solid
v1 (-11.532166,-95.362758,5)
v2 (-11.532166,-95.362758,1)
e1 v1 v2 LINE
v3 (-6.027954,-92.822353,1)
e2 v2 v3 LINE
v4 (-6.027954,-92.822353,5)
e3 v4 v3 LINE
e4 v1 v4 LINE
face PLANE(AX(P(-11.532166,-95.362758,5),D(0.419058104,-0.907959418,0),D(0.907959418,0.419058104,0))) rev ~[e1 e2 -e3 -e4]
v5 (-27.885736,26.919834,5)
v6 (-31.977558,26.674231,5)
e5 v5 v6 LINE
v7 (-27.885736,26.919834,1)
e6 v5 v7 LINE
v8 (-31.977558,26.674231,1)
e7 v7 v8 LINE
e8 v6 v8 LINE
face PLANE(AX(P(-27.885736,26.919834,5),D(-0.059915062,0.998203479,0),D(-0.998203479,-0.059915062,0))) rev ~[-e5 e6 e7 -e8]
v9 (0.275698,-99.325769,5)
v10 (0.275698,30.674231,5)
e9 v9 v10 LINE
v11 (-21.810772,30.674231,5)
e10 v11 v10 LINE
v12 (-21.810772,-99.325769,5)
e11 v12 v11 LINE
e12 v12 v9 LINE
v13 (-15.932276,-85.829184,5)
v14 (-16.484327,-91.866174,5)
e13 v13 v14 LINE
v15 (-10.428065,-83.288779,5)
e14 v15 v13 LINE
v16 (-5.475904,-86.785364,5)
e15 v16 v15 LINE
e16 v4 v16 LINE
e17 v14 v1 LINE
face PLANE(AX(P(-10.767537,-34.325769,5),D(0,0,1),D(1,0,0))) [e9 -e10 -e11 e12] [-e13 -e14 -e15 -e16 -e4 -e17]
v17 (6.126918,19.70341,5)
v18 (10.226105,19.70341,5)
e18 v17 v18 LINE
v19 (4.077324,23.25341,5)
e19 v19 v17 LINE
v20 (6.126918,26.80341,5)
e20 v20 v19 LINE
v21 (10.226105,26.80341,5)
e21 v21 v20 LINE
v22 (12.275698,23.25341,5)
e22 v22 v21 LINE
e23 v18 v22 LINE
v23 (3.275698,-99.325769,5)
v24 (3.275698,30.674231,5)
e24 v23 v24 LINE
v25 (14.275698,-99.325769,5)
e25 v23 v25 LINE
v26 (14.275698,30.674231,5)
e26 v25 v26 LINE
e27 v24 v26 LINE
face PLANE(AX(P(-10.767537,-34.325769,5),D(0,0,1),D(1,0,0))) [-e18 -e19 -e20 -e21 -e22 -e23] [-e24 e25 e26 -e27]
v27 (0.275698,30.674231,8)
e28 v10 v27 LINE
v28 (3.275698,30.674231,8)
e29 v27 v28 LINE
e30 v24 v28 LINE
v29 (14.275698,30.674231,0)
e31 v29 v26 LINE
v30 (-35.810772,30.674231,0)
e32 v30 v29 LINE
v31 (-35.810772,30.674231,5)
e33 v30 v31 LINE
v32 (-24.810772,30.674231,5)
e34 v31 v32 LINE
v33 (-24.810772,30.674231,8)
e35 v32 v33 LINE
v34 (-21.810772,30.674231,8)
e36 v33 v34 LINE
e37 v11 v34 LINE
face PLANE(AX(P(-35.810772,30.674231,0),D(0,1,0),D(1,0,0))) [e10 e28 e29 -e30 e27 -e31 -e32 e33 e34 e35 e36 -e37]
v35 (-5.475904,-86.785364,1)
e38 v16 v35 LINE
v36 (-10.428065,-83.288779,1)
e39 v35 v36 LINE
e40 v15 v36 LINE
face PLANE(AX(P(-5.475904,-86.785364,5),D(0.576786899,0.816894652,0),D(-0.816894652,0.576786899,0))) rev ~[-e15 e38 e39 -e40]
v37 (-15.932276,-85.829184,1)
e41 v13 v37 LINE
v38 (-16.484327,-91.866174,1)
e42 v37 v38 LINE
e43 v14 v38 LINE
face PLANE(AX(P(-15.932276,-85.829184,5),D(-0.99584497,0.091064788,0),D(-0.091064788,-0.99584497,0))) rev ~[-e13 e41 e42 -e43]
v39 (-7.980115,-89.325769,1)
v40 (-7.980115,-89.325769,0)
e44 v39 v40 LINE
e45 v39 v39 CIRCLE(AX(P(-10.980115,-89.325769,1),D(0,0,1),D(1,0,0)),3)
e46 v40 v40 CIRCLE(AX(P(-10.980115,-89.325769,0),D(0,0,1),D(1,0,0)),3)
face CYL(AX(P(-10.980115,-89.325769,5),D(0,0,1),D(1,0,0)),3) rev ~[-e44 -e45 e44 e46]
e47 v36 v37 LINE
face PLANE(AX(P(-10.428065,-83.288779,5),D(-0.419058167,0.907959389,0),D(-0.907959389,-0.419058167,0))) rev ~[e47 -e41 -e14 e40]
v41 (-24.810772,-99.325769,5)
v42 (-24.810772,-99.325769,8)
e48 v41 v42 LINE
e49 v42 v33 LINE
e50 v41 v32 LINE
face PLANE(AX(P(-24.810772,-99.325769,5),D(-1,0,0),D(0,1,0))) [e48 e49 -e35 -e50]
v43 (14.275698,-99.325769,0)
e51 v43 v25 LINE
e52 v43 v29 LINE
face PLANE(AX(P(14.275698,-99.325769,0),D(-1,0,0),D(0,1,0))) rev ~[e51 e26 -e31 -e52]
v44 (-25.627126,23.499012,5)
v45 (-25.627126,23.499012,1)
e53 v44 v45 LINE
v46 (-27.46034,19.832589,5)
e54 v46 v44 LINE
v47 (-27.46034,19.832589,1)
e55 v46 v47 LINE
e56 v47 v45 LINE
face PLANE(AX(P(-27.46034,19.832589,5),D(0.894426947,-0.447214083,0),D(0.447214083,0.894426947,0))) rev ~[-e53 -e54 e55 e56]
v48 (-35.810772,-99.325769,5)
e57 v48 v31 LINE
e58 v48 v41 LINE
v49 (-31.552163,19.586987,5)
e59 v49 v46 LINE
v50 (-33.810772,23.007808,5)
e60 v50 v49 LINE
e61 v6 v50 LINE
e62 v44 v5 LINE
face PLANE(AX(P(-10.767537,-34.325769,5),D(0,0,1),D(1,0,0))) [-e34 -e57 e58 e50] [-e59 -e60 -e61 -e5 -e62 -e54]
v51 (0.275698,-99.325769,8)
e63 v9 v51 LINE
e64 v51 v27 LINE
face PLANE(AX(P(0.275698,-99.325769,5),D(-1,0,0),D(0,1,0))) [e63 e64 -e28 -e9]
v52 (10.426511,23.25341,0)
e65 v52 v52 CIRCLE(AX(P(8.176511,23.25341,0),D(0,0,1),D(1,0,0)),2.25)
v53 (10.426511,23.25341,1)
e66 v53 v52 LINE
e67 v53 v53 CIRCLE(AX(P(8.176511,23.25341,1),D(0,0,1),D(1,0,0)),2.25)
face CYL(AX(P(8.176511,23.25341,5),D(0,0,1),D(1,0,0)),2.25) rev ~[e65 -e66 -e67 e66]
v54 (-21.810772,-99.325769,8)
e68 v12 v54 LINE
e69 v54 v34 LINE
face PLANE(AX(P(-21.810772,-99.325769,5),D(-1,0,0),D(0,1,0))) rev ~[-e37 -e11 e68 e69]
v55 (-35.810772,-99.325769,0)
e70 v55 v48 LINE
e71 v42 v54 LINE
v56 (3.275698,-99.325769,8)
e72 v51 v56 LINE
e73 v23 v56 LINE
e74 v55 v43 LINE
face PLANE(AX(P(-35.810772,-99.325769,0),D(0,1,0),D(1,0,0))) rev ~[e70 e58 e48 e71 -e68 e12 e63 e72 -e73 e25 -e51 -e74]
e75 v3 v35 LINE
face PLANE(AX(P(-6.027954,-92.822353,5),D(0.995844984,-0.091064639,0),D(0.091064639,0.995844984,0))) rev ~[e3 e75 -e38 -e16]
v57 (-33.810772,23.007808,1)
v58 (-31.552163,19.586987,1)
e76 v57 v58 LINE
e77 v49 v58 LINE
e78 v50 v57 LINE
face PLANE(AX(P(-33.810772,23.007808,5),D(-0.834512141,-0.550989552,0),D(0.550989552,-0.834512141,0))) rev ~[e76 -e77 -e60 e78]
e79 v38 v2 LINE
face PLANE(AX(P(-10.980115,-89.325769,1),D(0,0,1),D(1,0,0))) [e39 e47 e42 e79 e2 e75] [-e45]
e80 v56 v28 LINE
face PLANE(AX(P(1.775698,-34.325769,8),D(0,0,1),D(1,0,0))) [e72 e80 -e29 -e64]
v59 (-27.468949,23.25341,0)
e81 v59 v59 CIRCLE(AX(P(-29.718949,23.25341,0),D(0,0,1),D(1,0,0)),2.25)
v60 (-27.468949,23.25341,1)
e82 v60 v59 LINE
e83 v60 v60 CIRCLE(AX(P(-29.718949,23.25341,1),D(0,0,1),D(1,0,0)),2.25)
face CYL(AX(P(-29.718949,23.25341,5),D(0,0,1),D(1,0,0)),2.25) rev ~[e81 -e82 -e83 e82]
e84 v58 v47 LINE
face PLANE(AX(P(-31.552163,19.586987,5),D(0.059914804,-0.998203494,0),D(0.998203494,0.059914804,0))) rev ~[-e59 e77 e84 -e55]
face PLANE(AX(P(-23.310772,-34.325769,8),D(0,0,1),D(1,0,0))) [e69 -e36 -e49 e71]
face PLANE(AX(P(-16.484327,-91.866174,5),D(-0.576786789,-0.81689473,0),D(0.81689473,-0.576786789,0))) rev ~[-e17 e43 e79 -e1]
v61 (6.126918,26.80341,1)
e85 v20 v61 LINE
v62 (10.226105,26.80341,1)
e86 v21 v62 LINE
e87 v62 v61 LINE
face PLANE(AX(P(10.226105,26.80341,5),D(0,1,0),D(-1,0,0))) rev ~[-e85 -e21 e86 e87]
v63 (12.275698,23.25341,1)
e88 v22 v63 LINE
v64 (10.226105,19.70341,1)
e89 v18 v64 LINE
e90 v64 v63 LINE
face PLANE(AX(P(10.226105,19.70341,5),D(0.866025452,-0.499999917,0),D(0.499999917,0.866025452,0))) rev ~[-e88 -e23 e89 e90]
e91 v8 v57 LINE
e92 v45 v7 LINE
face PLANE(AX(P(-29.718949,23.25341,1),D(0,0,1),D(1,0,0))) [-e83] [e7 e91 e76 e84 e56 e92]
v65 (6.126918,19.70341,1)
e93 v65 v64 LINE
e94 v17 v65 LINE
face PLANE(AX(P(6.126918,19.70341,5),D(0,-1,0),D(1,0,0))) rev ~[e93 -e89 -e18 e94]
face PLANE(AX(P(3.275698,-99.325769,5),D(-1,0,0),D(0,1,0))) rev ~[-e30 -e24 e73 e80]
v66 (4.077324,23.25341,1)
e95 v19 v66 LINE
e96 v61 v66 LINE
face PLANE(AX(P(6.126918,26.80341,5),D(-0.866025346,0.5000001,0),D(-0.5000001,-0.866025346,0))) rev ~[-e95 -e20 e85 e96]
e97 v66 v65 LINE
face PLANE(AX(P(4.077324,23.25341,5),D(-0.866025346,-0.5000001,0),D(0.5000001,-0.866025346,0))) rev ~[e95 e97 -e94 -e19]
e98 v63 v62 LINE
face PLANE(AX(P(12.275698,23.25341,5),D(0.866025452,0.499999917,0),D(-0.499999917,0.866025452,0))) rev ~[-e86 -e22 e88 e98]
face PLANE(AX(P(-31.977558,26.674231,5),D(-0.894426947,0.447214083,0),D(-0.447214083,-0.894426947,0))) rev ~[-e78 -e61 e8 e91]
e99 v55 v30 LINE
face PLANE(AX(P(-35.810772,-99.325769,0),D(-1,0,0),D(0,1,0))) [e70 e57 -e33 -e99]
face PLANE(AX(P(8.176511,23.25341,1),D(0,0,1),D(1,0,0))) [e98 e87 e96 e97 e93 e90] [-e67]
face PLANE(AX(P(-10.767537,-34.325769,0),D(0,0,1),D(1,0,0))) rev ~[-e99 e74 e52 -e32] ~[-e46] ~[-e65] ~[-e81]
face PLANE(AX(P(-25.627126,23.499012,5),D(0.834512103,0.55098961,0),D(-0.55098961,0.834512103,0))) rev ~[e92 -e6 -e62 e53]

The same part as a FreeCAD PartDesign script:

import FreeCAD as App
import Part
import Sketcher
from FreeCAD import Vector
Q = App.Units.Quantity

doc = App.newDocument("Part")
body = doc.addObject("PartDesign::Body", "Body")

sketch1 = body.newObject("Sketcher::SketchObject", "Sketch")
sketch1.AttachmentSupport = (doc.getObject("XY_Plane"), [""])
sketch1.MapMode = "FlatFace"
sketch1.addGeometry([
    Part.LineSegment(Vector(-36, 31, 0), Vector(-36, -99, 0)),
    Part.LineSegment(Vector(-36, -99, 0), Vector(14, -99, 0)),
    Part.LineSegment(Vector(14, -99, 0), Vector(14, 31, 0)),
    Part.LineSegment(Vector(14, 31, 0), Vector(-36, 31, 0)),
], False)
sketch1.addConstraint([
    Sketcher.Constraint("Coincident", 0, 2, 1, 1),
    Sketcher.Constraint("Coincident", 1, 2, 2, 1),
    Sketcher.Constraint("Coincident", 2, 2, 3, 1),
    Sketcher.Constraint("Coincident", 3, 2, 0, 1),
    Sketcher.Constraint("Vertical", 0),
    Sketcher.Constraint("Horizontal", 1),
    Sketcher.Constraint("Vertical", 2),
    Sketcher.Constraint("Horizontal", 3),
    Sketcher.Constraint("DistanceY", 0, 2, 0, 1, 130.0),
    Sketcher.Constraint("DistanceX", 1, 1, 1, 2, 50.08647),
    Sketcher.Constraint("DistanceY", 0, 2, -1, 1, 99.325769),
    Sketcher.Constraint("DistanceX", 0, 2, -1, 1, 35.810772),
])
pad1 = body.newObject("PartDesign::Pad", "Pad")
pad1.Profile = sketch1
pad1.Length = 5

sketch2 = body.newObject("Sketcher::SketchObject", "Sketch001")
sketch2.AttachmentSupport = (doc.getObject("XY_Plane"), [""])
sketch2.MapMode = "FlatFace"
sketch2.AttachmentOffset = App.Placement(Vector(0, 0, 5), App.Rotation())
sketch2.addGeometry([
    Part.Circle(Vector(-11, -89.3, 0), Vector(0, 0, 1), 3),
    Part.Circle(Vector(8.2, 23.3, 0), Vector(0, 0, 1), 2.2),
    Part.Circle(Vector(-29.7, 23.3, 0), Vector(0, 0, 1), 2.2),
], False)
sketch2.addConstraint([
    Sketcher.Constraint("Equal", 1, 2),
    Sketcher.Constraint("Horizontal", 1, 3, 2, 3),
    Sketcher.Constraint("Diameter", 0, 6.0),
    Sketcher.Constraint("Diameter", 1, 4.5),
    Sketcher.Constraint("DistanceY", 0, 3, -1, 1, 89.325769),
    Sketcher.Constraint("DistanceX", -1, 1, 1, 3, 8.176511),
    Sketcher.Constraint("DistanceY", -1, 1, 1, 3, 23.25341),
    Sketcher.Constraint("DistanceX", 2, 3, -1, 1, 29.718949),
    Sketcher.Constraint("DistanceX", 0, 3, -1, 1, 10.980115),
])
pocket1 = body.newObject("PartDesign::Pocket", "Pocket")
pocket1.Profile = sketch2
pocket1.Length = 25

sketch3 = body.newObject("Sketcher::SketchObject", "Sketch002")
sketch3.AttachmentSupport = (doc.getObject("XY_Plane"), [""])
sketch3.MapMode = "FlatFace"
sketch3.AttachmentOffset = App.Placement(Vector(0, 0, 5), App.Rotation())
sketch3.addGeometry([
    Part.LineSegment(Vector(10.2, 26.8, 0), Vector(6.1, 26.8, 0)),
    Part.LineSegment(Vector(6.1, 26.8, 0), Vector(4.1, 23.3, 0)),
    Part.LineSegment(Vector(4.1, 23.3, 0), Vector(6.1, 19.7, 0)),
    Part.LineSegment(Vector(6.1, 19.7, 0), Vector(10.2, 19.7, 0)),
    Part.LineSegment(Vector(10.2, 19.7, 0), Vector(12.3, 23.3, 0)),
    Part.LineSegment(Vector(12.3, 23.3, 0), Vector(10.2, 26.8, 0)),
    Part.Circle(Vector(8.2, 23.3, 0), Vector(0, 0, 1), 2.2),
    Part.LineSegment(Vector(-32, 26.7, 0), Vector(-33.8, 23, 0)),
    Part.LineSegment(Vector(-33.8, 23, 0), Vector(-31.6, 19.6, 0)),
    Part.LineSegment(Vector(-31.6, 19.6, 0), Vector(-27.5, 19.8, 0)),
    Part.LineSegment(Vector(-27.5, 19.8, 0), Vector(-25.6, 23.5, 0)),
    Part.LineSegment(Vector(-25.6, 23.5, 0), Vector(-27.9, 26.9, 0)),
    Part.LineSegment(Vector(-27.9, 26.9, 0), Vector(-32, 26.7, 0)),
    Part.Circle(Vector(-29.7, 23.3, 0), Vector(0, 0, 1), 2.2),
    Part.LineSegment(Vector(-10.4, -83.3, 0), Vector(-15.9, -85.8, 0)),
    Part.LineSegment(Vector(-15.9, -85.8, 0), Vector(-16.5, -91.9, 0)),
    Part.LineSegment(Vector(-16.5, -91.9, 0), Vector(-11.5, -95.4, 0)),
    Part.LineSegment(Vector(-11.5, -95.4, 0), Vector(-6, -92.8, 0)),
    Part.LineSegment(Vector(-6, -92.8, 0), Vector(-5.5, -86.8, 0)),
    Part.LineSegment(Vector(-5.5, -86.8, 0), Vector(-10.4, -83.3, 0)),
    Part.Circle(Vector(-11, -89.3, 0), Vector(0, 0, 1), 3),
], False)
sketch3.addConstraint([
    Sketcher.Constraint("Coincident", 0, 2, 1, 1),
    Sketcher.Constraint("Coincident", 1, 2, 2, 1),
    Sketcher.Constraint("Coincident", 2, 2, 3, 1),
    Sketcher.Constraint("Coincident", 3, 2, 4, 1),
    Sketcher.Constraint("Coincident", 4, 2, 5, 1),
    Sketcher.Constraint("Coincident", 5, 2, 0, 1),
    Sketcher.Constraint("Coincident", 7, 2, 8, 1),
    Sketcher.Constraint("Coincident", 8, 2, 9, 1),
    Sketcher.Constraint("Coincident", 9, 2, 10, 1),
    Sketcher.Constraint("Coincident", 10, 2, 11, 1),
    Sketcher.Constraint("Coincident", 11, 2, 12, 1),
    Sketcher.Constraint("Coincident", 12, 2, 7, 1),
    Sketcher.Constraint("Coincident", 14, 2, 15, 1),
    Sketcher.Constraint("Coincident", 15, 2, 16, 1),
    Sketcher.Constraint("Coincident", 16, 2, 17, 1),
    Sketcher.Constraint("Coincident", 17, 2, 18, 1),
    Sketcher.Constraint("Coincident", 18, 2, 19, 1),
    Sketcher.Constraint("Coincident", 19, 2, 14, 1),
    Sketcher.Constraint("Horizontal", 0),
    Sketcher.Constraint("Horizontal", 3),
    Sketcher.Constraint("Equal", 6, 13),
    Sketcher.Constraint("Parallel", 1, 4),
    Sketcher.Constraint("Parallel", 2, 5),
    Sketcher.Constraint("Parallel", 7, 10),
    Sketcher.Constraint("Parallel", 8, 11),
    Sketcher.Constraint("Parallel", 9, 12),
    Sketcher.Constraint("Parallel", 14, 17),
    Sketcher.Constraint("Parallel", 15, 18),
    Sketcher.Constraint("Parallel", 16, 19),
    Sketcher.Constraint("Horizontal", 6, 3, 13, 3),
    Sketcher.Constraint("Horizontal", 13, 3, 1, 2),
    Sketcher.Constraint("Horizontal", 1, 2, 4, 2),
    Sketcher.Constraint("Vertical", 0, 2, 2, 2),
    Sketcher.Constraint("Vertical", 3, 2, 5, 2),
    Sketcher.Constraint("Equal", 5, 7),
    Sketcher.Constraint("Equal", 7, 8),
    Sketcher.Constraint("Equal", 8, 9),
    Sketcher.Constraint("Equal", 9, 10),
    Sketcher.Constraint("Equal", 14, 15),
    Sketcher.Constraint("Equal", 15, 16),
    Sketcher.Constraint("Equal", 16, 17),
    Sketcher.Constraint("Diameter", 20, 6.0),
    Sketcher.Constraint("Diameter", 6, 4.5),
    Sketcher.Constraint("Angle", 1, Q("-120.000007 deg")),
    Sketcher.Constraint("DistanceY", 2, 2, 0, 2, 7.1),
    Sketcher.Constraint("DistanceY", 7, 2, 13, 3, 0.245602),
    Sketcher.Constraint("DistanceY", 8, 2, 9, 2, 0.245602),
    Sketcher.Constraint("Distance", 15, 6.062179),
    Sketcher.Constraint("DistanceX", 0, 2, 0, 1, 4.099187),
    Sketcher.Constraint("DistanceX", -1, 1, 6, 3, 8.176511),
    Sketcher.Constraint("DistanceY", -1, 1, 6, 3, 23.25341),
    Sketcher.Constraint("DistanceX", 13, 3, -1, 1, 29.718949),
    Sketcher.Constraint("DistanceY", 20, 3, -1, 1, 89.325769),
    Sketcher.Constraint("DistanceX", 9, 2, -1, 1, 27.46034),
    Sketcher.Constraint("DistanceY", -1, 1, 9, 2, 19.832589),
    Sketcher.Constraint("DistanceY", -1, 1, 12, 2, 26.674231),
    Sketcher.Constraint("DistanceY", 16, 2, -1, 1, 95.362758),
    Sketcher.Constraint("DistanceY", 19, 2, -1, 1, 83.288779),
    Sketcher.Constraint("DistanceX", 20, 3, 1, 2, 15.057439),
    Sketcher.Constraint("DistanceX", 7, 2, 2, 2, 39.93769),
    Sketcher.Constraint("DistanceX", 14, 2, 20, 3, 4.952161),
    Sketcher.Constraint("DistanceY", 14, 2, 8, 2, 105.416171),
    Sketcher.Constraint("DistanceX", 15, 2, 14, 2, 0.552051),
])
pocket2 = body.newObject("PartDesign::Pocket", "Pocket001")
pocket2.Profile = sketch3
pocket2.Length = 4

sketch4 = body.newObject("Sketcher::SketchObject", "Sketch003")
sketch4.AttachmentSupport = (doc.getObject("XY_Plane"), [""])
sketch4.MapMode = "FlatFace"
sketch4.AttachmentOffset = App.Placement(Vector(0, 0, 5), App.Rotation())
sketch4.addGeometry([
    Part.LineSegment(Vector(0.3, 30.7, 0), Vector(0.3, -99.3, 0)),
    Part.LineSegment(Vector(0.3, -99.3, 0), Vector(3.3, -99.3, 0)),
    Part.LineSegment(Vector(3.3, -99.3, 0), Vector(3.3, 30.7, 0)),
    Part.LineSegment(Vector(3.3, 30.7, 0), Vector(0.3, 30.7, 0)),
    Part.LineSegment(Vector(-24.8, 30.7, 0), Vector(-24.8, -99.3, 0)),
    Part.LineSegment(Vector(-24.8, -99.3, 0), Vector(-21.8, -99.3, 0)),
    Part.LineSegment(Vector(-21.8, -99.3, 0), Vector(-21.8, 30.7, 0)),
    Part.LineSegment(Vector(-21.8, 30.7, 0), Vector(-24.8, 30.7, 0)),
], False)
sketch4.addConstraint([
    Sketcher.Constraint("Coincident", 0, 2, 1, 1),
    Sketcher.Constraint("Coincident", 1, 2, 2, 1),
    Sketcher.Constraint("Coincident", 2, 2, 3, 1),
    Sketcher.Constraint("Coincident", 3, 2, 0, 1),
    Sketcher.Constraint("Coincident", 4, 2, 5, 1),
    Sketcher.Constraint("Coincident", 5, 2, 6, 1),
    Sketcher.Constraint("Coincident", 6, 2, 7, 1),
    Sketcher.Constraint("Coincident", 7, 2, 4, 1),
    Sketcher.Constraint("Vertical", 0),
    Sketcher.Constraint("Horizontal", 1),
    Sketcher.Constraint("Vertical", 2),
    Sketcher.Constraint("Horizontal", 3),
    Sketcher.Constraint("Vertical", 4),
    Sketcher.Constraint("Horizontal", 5),
    Sketcher.Constraint("Vertical", 6),
    Sketcher.Constraint("Horizontal", 7),
    Sketcher.Constraint("Horizontal", 1, 2, 4, 2),
    Sketcher.Constraint("Horizontal", 3, 2, 6, 2),
    Sketcher.Constraint("Equal", 3, 5),
    Sketcher.Constraint("DistanceX", 1, 1, 1, 2, 3.0),
    Sketcher.Constraint("DistanceY", 0, 2, 0, 1, 130.0),
    Sketcher.Constraint("DistanceX", -1, 1, 1, 2, 3.275698),
    Sketcher.Constraint("DistanceY", 0, 2, -1, 1, 99.325769),
    Sketcher.Constraint("DistanceX", 4, 2, -1, 1, 24.810772),
])
pad2 = body.newObject("PartDesign::Pad", "Pad001")
pad2.Profile = sketch4
pad2.Length = 3

doc.recompute()
